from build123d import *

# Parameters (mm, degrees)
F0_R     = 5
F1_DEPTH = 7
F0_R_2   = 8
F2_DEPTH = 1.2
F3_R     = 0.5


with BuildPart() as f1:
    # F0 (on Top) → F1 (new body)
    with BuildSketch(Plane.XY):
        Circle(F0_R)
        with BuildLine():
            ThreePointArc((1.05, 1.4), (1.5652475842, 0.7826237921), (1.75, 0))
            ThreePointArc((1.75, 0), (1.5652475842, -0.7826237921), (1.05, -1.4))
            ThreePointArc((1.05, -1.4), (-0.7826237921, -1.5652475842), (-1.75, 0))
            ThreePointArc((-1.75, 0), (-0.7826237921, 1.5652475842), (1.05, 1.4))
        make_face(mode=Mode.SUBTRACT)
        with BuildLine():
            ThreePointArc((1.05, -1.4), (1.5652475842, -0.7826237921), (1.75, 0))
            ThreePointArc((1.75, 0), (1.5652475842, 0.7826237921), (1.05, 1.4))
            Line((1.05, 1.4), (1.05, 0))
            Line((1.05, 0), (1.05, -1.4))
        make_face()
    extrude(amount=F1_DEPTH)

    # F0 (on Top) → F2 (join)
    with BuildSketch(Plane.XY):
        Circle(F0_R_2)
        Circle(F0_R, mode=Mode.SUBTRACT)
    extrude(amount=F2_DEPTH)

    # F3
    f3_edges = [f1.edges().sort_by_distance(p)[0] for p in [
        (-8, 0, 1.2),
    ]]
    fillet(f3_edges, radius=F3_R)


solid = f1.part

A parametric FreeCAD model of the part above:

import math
import FreeCAD as App
import Part
import Sketcher

V = App.Vector


def edges_at(feature, points):
    """Names of the edges that pass closest to the given points."""
    edges = feature.Shape.Edges
    near = lambda p: min(range(len(edges)), key=lambda i: edges[i].distToShape(Part.Vertex(*p))[0])
    return sorted({f"Edge{near(p) + 1}" for p in points})

doc = App.newDocument("Part")
params = doc.addObject("Spreadsheet::Sheet", "Params")
for row, (alias, value) in enumerate([
    ("sketch1_diameter", "10 mm"),
    ("sketch1_radius", "1.75 mm"),
    ("sketch1_height", "2.8 mm"),
    ("pad1_length", "7 mm"),
    ("sketch2_diameter", "16 mm"),
    ("sketch2_diameter2", "10 mm"),
    ("pad2_length", "1.2 mm"),
    ("fillet_radius", "0.5 mm"),
], start=1):
    params.set(f"A{row}", alias)
    params.set(f"B{row}", "=" + value)
    params.setAlias(f"B{row}", alias)

body = doc.addObject("PartDesign::Body", "Body")

sketch1 = body.newObject("Sketcher::SketchObject", "Sketch")
sketch1.AttachmentSupport = (doc.getObject("XY_Plane"), [""])
sketch1.MapMode = "FlatFace"
sketch1.addGeometry([
    Part.Circle(V(0, 0, 0), V(0, 0, 1), 5),
    Part.ArcOfCircle(Part.Circle(V(0, 0, 0), V(0, 0, 1), 1.8), math.radians(53), math.radians(180)),
    Part.LineSegment(V(1.1, 1.4, 0), V(1.1, -1.4, 0)),
    Part.ArcOfCircle(Part.Circle(V(0, 0, 0), V(0, 0, 1), 1.8), math.radians(180), math.radians(307)),
], False)
sketch1.addConstraint([
    Sketcher.Constraint("Coincident", 1, 1, 2, 1),
    Sketcher.Constraint("Coincident", 2, 2, 3, 2),
    Sketcher.Constraint("Tangent", 3, 1, 1, 2),
    Sketcher.Constraint("Vertical", 2),
    Sketcher.Constraint("Coincident", 0, 3, -1, 1),
    Sketcher.Constraint("Coincident", 1, 3, -1, 1),
    Sketcher.Constraint("Equal", 1, 3),
    Sketcher.Constraint("PointOnObject", 3, 1, -1),
    Sketcher.Constraint("Diameter", 0, 10.0),
    Sketcher.Constraint("Radius", 1, 1.75),
    Sketcher.Constraint("DistanceY", 2, 2, 2, 1, 2.8),
])
sketch1.setExpression("Constraints[8]", "Params.sketch1_diameter")
sketch1.setExpression("Constraints[9]", "Params.sketch1_radius")
sketch1.setExpression("Constraints[10]", "Params.sketch1_height")
pad1 = body.newObject("PartDesign::Pad", "Pad")
pad1.Profile = sketch1
pad1.setExpression("Length", "Params.pad1_length")

sketch2 = body.newObject("Sketcher::SketchObject", "Sketch001")
sketch2.AttachmentSupport = (doc.getObject("XY_Plane"), [""])
sketch2.MapMode = "FlatFace"
sketch2.addGeometry([
    Part.Circle(V(0, 0, 0), V(0, 0, 1), 8),
    Part.Circle(V(0, 0, 0), V(0, 0, 1), 5),
], False)
sketch2.addConstraint([
    Sketcher.Constraint("Coincident", 0, 3, -1, 1),
    Sketcher.Constraint("Coincident", 1, 3, -1, 1),
    Sketcher.Constraint("Diameter", 0, 16.0),
    Sketcher.Constraint("Diameter", 1, 10.0),
])
sketch2.setExpression("Constraints[2]", "Params.sketch2_diameter")
sketch2.setExpression("Constraints[3]", "Params.sketch2_diameter2")
pad2 = body.newObject("PartDesign::Pad", "Pad001")
pad2.Profile = sketch2
pad2.setExpression("Length", "Params.pad2_length")
doc.recompute()

fillet = body.newObject("PartDesign::Fillet", "Fillet")
fillet.Base = (pad2, edges_at(pad2, [(-8, 0, 1.2)]))
fillet.setExpression("Radius", "Params.fillet_radius")

doc.recompute()
